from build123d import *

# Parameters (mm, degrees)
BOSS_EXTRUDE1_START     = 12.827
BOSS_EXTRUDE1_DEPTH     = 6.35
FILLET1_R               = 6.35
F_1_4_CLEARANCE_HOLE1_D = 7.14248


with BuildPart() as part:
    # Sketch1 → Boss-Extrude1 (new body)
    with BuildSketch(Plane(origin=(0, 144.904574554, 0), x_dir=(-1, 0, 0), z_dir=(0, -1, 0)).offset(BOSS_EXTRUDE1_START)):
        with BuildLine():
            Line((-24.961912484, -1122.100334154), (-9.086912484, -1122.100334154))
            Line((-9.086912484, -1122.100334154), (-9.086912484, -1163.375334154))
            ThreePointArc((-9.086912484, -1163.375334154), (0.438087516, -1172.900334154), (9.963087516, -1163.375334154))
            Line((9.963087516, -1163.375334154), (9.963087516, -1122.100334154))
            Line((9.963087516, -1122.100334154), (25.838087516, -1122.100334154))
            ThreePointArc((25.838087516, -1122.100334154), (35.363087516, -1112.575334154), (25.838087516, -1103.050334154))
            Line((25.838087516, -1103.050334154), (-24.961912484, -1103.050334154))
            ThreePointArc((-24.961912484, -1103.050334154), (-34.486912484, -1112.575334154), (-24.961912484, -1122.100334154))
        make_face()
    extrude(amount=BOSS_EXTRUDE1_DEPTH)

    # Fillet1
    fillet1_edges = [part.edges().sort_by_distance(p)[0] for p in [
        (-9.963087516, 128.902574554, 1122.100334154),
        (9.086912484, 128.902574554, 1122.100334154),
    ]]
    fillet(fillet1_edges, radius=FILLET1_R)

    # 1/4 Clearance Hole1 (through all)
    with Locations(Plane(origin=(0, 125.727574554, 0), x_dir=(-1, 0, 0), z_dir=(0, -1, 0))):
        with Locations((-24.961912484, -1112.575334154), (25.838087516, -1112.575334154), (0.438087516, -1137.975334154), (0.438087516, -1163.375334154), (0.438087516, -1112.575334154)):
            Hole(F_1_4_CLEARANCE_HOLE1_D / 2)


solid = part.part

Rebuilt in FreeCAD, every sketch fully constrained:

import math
import FreeCAD as App
import Part
import Sketcher
Q = App.Units.Quantity


def edges_at(feature, points):
    """Names of the edges that pass closest to the given points."""
    edges = feature.Shape.Edges
    near = lambda p: min(range(len(edges)), key=lambda i: edges[i].distToShape(Part.Vertex(*p))[0])
    return sorted({f"Edge{near(p) + 1}" for p in points})

doc = App.newDocument("Part")
params = doc.addObject("Spreadsheet::Sheet", "Params")
for row, (alias, value) in enumerate([
    ("sketch1_width", "2 in"),
    ("sketch1_radius", "0.375 in"),
    ("pad1_length", "0.25 in"),
    ("fillet_radius", "0.25 in"),
    ("hole_diameter", "0.2812 in"),
], start=1):
    params.set(f"A{row}", alias)
    params.set(f"B{row}", "=" + value)
    params.setAlias(f"B{row}", alias)

body = doc.addObject("PartDesign::Body", "Body")

# Sketch on XZ plane
sketch1 = body.newObject("Sketcher::SketchObject", "Sketch")
sketch1.AttachmentSupport = (doc.getObject("XZ_Plane"), [""])
sketch1.MapMode = "FlatFace"
sketch1.AttachmentOffset = App.Placement(App.Vector(0, 0, -132.077575), App.Rotation())
sketch1.addGeometry([
    Part.LineSegment(App.Vector(25, 1122, 0), App.Vector(9, 1122, 0)),  # 0
    Part.LineSegment(App.Vector(9, 1122, 0), App.Vector(9, 1163, 0)),  # 1
    Part.ArcOfCircle(Part.Circle(App.Vector(0, 1163, 0), App.Vector(0, 0, 1), 10), math.radians(0), math.radians(180)),  # 2
    Part.LineSegment(App.Vector(-10, 1163, 0), App.Vector(-10, 1122, 0)),  # 3
    Part.LineSegment(App.Vector(-10, 1122, 0), App.Vector(-26, 1122, 0)),  # 4
    Part.ArcOfCircle(Part.Circle(App.Vector(-26, 1113, 0), App.Vector(0, 0, 1), 10), math.radians(90), math.radians(270)),  # 5
    Part.LineSegment(App.Vector(-26, 1103, 0), App.Vector(25, 1103, 0)),  # 6
    Part.ArcOfCircle(Part.Circle(App.Vector(25, 1113, 0), App.Vector(0, 0, 1), 10), math.radians(-90), math.radians(90)),  # 7
], False)
sketch1.addConstraint([
    Sketcher.Constraint("Coincident", 0, 2, 1, 1),
    Sketcher.Constraint("Tangent", 1, 2, 2, 1),
    Sketcher.Constraint("Tangent", 2, 2, 3, 1),
    Sketcher.Constraint("Coincident", 3, 2, 4, 1),
    Sketcher.Constraint("Tangent", 4, 2, 5, 1),
    Sketcher.Constraint("Tangent", 5, 2, 6, 1),
    Sketcher.Constraint("Tangent", 6, 2, 7, 1),
    Sketcher.Constraint("Tangent", 7, 2, 0, 1),
    Sketcher.Constraint("Horizontal", 0),
    Sketcher.Constraint("Vertical", 1),
    Sketcher.Constraint("Vertical", 3),
    Sketcher.Constraint("Horizontal", 4),
    Sketcher.Constraint("Horizontal", 6),
    Sketcher.Constraint("Equal", 2, 5),
    Sketcher.Constraint("Equal", 5, 7),
    Sketcher.Constraint("Equal", 0, 4),
    Sketcher.Constraint("DistanceX", 6, 1, 6, 2, Q("2 in")),
    Sketcher.Constraint("Radius", 2, Q("0.375 in")),
    Sketcher.Constraint("DistanceY", 5, 3, 2, 3, Q("2 in")),
    Sketcher.Constraint("DistanceX", 2, 3, -1, 1, Q("0.438088 mm")),
    Sketcher.Constraint("DistanceY", -1, 1, 2, 3, Q("1163.375334 mm")),
])
sketch1.setExpression("Constraints[16]", "Params.sketch1_width")
sketch1.setExpression("Constraints[17]", "Params.sketch1_radius")
pad1 = body.newObject("PartDesign::Pad", "Pad")
pad1.Profile = sketch1
pad1.setExpression("Length", "Params.pad1_length")
doc.recompute()

fillet = body.newObject("PartDesign::Fillet", "Fillet")
fillet.Base = (pad1, edges_at(pad1, [(-9.963, 128.903, 1122.1), (9.087, 128.903, 1122.1)]))
fillet.setExpression("Radius", "Params.fillet_radius")

# Sketch on XZ plane
sketch2 = body.newObject("Sketcher::SketchObject", "Sketch001")
sketch2.AttachmentSupport = (doc.getObject("XZ_Plane"), [""])
sketch2.MapMode = "FlatFace"
sketch2.AttachmentOffset = App.Placement(App.Vector(0, 0, -125.727575), App.Rotation())
sketch2.addGeometry([
    Part.Circle(App.Vector(25, 1112.6, 0), App.Vector(0, 0, 1), 3.6),  # 0
    Part.Circle(App.Vector(-25.8, 1112.6, 0), App.Vector(0, 0, 1), 3.6),  # 1
    Part.Circle(App.Vector(-0.4, 1138, 0), App.Vector(0, 0, 1), 3.6),  # 2
    Part.Circle(App.Vector(-0.4, 1163.4, 0), App.Vector(0, 0, 1), 3.6),  # 3
    Part.Circle(App.Vector(-0.4, 1112.6, 0), App.Vector(0, 0, 1), 3.6),  # 4
], False)
sketch2.addConstraint([
    Sketcher.Constraint("Equal", 0, 1),
    Sketcher.Constraint("Equal", 1, 2),
    Sketcher.Constraint("Equal", 2, 3),
    Sketcher.Constraint("Equal", 3, 4),
    Sketcher.Constraint("Horizontal", 0, 3, 1, 3),
    Sketcher.Constraint("Horizontal", 1, 3, 4, 3),
    Sketcher.Constraint("Vertical", 2, 3, 3, 3),
    Sketcher.Constraint("Vertical", 3, 3, 4, 3),
    Sketcher.Constraint("DistanceX", 1, 3, 0, 3, Q("2 in")),
    Sketcher.Constraint("DistanceX", 2, 3, 0, 3, Q("1 in")),
    Sketcher.Constraint("DistanceY", 0, 3, 2, 3, Q("1 in")),
    Sketcher.Constraint("DistanceY", 2, 3, 3, 3, Q("1 in")),
    Sketcher.Constraint("Diameter", 0, Q("0.2812 in")),
    Sketcher.Constraint("DistanceX", -1, 1, 0, 3, Q("24.961912 mm")),
    Sketcher.Constraint("DistanceY", -1, 1, 0, 3, Q("1112.575334 mm")),
])
doc.recompute()
hole = body.newObject("PartDesign::Hole", "Hole")
hole.Profile = sketch2
hole.ThreadType = "None"
hole.setExpression("Diameter", "Params.hole_diameter")
hole.DepthType = "ThroughAll"

doc.recompute()
